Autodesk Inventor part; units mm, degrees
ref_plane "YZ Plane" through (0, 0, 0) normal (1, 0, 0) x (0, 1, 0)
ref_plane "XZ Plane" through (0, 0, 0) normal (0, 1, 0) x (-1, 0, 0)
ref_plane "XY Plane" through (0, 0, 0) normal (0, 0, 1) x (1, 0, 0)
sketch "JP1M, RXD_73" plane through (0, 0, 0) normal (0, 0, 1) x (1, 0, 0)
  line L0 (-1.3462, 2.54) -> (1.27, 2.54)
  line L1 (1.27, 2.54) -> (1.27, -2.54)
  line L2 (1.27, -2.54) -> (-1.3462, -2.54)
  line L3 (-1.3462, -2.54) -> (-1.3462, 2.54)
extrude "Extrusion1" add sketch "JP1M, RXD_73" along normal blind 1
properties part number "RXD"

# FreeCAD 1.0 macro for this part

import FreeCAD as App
import Part
import Sketcher

V = App.Vector
Q = App.Units.Quantity


def add_polygon(sketch, points):
    """Adds a closed chain of lines whose ends are joined by coincident constraints."""
    first, n = sketch.GeometryCount, len(points)
    for a, b in zip(points, points[1:] + points[:1]):
        sketch.addGeometry(Part.LineSegment(App.Vector(*a, 0), App.Vector(*b, 0)), False)
    for i in range(n):
        sketch.addConstraint(Sketcher.Constraint("Coincident", first + i, 2, first + (i + 1) % n, 1))

doc = App.newDocument("Part")
body = doc.addObject("PartDesign::Body", "Body")

# Sketch on XY plane
sketch1 = body.newObject("Sketcher::SketchObject", "Sketch")
sketch1.AttachmentSupport = (doc.getObject("XY_Plane"), [""])
sketch1.MapMode = "FlatFace"
add_polygon(sketch1, [(1.27, 2.54), (-1.3462, 2.54), (-1.3462, -2.54), (1.27, -2.54)])  # lines 0-3
sketch1.addConstraint([
    Sketcher.Constraint("Horizontal", 0),
    Sketcher.Constraint("Vertical", 1),
    Sketcher.Constraint("Horizontal", 2),
    Sketcher.Constraint("Vertical", 3),
    Sketcher.Constraint("DistanceY", 1, 2, 1, 1, Q("0.2 in")),
    Sketcher.Constraint("DistanceY", -1, 1, 0, 2, Q("0.1 in")),
    Sketcher.Constraint("DistanceX", 0, 2, 0, 1, Q("0.103 in")),
    Sketcher.Constraint("DistanceX", -1, 1, 2, 2, Q("0.05 in")),
])
pad1 = body.newObject("PartDesign::Pad", "Pad")
pad1.Profile = sketch1
pad1.Length = 1

doc.recompute()
